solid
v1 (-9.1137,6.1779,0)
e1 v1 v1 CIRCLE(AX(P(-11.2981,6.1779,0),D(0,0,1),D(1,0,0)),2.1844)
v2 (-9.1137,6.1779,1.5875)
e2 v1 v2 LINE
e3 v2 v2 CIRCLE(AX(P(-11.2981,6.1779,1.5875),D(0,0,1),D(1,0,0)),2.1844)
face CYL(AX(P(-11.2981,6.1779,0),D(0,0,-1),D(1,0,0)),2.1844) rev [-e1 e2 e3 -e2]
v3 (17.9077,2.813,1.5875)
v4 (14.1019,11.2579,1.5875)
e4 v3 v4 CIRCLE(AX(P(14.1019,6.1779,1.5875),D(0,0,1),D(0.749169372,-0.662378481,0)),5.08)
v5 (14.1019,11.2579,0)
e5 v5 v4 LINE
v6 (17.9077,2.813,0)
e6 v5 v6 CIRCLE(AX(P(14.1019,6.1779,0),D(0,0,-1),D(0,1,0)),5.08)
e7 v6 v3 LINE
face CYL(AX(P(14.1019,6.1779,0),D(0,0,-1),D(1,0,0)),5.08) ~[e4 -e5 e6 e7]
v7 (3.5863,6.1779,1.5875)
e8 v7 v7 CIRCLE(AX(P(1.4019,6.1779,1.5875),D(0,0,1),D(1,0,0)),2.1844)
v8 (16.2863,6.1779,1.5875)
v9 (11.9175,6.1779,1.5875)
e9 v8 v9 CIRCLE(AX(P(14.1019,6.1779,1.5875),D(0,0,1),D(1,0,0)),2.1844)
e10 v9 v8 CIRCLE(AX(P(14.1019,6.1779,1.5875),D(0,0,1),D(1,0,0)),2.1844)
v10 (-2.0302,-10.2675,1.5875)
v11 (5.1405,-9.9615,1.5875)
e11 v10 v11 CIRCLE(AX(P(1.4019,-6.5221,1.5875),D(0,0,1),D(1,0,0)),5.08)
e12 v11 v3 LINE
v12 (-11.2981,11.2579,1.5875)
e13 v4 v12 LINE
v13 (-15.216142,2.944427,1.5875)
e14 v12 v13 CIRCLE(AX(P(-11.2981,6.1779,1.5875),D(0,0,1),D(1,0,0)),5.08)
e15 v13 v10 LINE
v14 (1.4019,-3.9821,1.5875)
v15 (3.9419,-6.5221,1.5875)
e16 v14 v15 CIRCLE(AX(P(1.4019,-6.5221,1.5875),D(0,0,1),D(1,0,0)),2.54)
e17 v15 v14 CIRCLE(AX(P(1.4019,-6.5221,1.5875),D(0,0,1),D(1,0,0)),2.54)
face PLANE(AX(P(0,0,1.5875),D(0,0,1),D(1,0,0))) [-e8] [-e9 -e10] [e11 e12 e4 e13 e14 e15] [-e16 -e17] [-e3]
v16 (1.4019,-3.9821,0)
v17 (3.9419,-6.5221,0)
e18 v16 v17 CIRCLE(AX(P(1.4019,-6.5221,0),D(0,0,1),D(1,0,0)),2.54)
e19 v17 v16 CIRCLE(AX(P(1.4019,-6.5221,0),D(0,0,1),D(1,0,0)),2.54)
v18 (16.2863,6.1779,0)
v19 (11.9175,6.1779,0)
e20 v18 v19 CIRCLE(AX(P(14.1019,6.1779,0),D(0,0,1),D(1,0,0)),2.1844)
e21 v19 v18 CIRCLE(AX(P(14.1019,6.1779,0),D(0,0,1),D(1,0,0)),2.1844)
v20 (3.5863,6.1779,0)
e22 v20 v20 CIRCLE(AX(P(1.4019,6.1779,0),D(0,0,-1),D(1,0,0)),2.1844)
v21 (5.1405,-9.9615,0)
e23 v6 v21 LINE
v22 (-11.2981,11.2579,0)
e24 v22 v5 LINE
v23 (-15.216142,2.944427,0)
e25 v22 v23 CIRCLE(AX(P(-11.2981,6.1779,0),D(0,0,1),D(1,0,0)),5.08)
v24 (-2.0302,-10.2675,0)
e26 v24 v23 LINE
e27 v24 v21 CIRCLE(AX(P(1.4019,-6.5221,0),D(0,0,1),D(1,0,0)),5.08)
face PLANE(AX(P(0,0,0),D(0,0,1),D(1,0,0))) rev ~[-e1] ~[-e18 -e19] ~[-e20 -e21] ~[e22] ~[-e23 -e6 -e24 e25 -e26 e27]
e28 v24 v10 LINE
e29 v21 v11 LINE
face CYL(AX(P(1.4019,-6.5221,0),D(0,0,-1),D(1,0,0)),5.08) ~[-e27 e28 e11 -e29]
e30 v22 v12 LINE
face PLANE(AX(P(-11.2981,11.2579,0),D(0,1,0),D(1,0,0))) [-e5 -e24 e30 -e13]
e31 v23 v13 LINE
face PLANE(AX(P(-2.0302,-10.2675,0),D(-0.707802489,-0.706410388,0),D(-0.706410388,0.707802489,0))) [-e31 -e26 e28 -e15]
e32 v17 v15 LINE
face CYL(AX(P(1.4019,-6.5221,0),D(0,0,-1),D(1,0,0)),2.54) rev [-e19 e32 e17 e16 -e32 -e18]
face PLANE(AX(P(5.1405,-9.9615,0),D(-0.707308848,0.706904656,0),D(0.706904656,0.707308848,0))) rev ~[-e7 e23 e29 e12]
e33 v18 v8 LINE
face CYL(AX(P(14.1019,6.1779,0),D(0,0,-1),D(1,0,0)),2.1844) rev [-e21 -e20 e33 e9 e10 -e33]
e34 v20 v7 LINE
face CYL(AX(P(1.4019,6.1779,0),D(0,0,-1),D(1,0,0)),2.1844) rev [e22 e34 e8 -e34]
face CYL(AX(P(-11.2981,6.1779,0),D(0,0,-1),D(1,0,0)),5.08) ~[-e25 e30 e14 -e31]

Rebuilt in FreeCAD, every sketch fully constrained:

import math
import FreeCAD as App
import Part
import Sketcher
Q = App.Units.Quantity

doc = App.newDocument("Part")
body = doc.addObject("PartDesign::Body", "Body")

sketch1 = body.newObject("Sketcher::SketchObject", "Sketch")
sketch1.AttachmentSupport = (doc.getObject("XY_Plane"), [""])
sketch1.MapMode = "FlatFace"
sketch1.addGeometry([
    Part.LineSegment(App.Vector(5.1, -10, 0), App.Vector(17.9, 2.8, 0)),
    Part.ArcOfCircle(Part.Circle(App.Vector(14.1, 6.2, 0), App.Vector(0, 0, 1), 5.1), math.radians(-41), math.radians(90)),
    Part.LineSegment(App.Vector(14.1, 11.3, 0), App.Vector(-11.3, 11.3, 0)),
    Part.ArcOfCircle(Part.Circle(App.Vector(-11.3, 6.2, 0), App.Vector(0, 0, 1), 5.1), math.radians(90), math.radians(220)),
    Part.LineSegment(App.Vector(-15.2, 2.9, 0), App.Vector(-2, -10.3, 0)),
    Part.ArcOfCircle(Part.Circle(App.Vector(1.4, -6.5, 0), App.Vector(0, 0, 1), 5.1), math.radians(-133), math.radians(-43)),
    Part.Circle(App.Vector(1.4, 6.2, 0), App.Vector(0, 0, 1), 2.2),
    Part.Circle(App.Vector(14.1, 6.2, 0), App.Vector(0, 0, 1), 2.2),
    Part.Circle(App.Vector(1.4, -6.5, 0), App.Vector(0, 0, 1), 2.5),
    Part.Circle(App.Vector(-11.3, 6.2, 0), App.Vector(0, 0, 1), 2.2),
], False)
sketch1.addConstraint([
    Sketcher.Constraint("Coincident", 0, 2, 1, 1),
    Sketcher.Constraint("Tangent", 1, 2, 2, 1),
    Sketcher.Constraint("Tangent", 2, 2, 3, 1),
    Sketcher.Constraint("Coincident", 3, 2, 4, 1),
    Sketcher.Constraint("Coincident", 4, 2, 5, 1),
    Sketcher.Constraint("Coincident", 5, 2, 0, 1),
    Sketcher.Constraint("Horizontal", 2),
    Sketcher.Constraint("Coincident", 7, 3, 1, 3),
    Sketcher.Constraint("Coincident", 8, 3, 5, 3),
    Sketcher.Constraint("Coincident", 9, 3, 3, 3),
    Sketcher.Constraint("Equal", 1, 3),
    Sketcher.Constraint("Equal", 3, 5),
    Sketcher.Constraint("Equal", 6, 7),
    Sketcher.Constraint("Equal", 7, 9),
    Sketcher.Constraint("Horizontal", 3, 3, 6, 3),
    Sketcher.Constraint("Vertical", 5, 3, 6, 3),
    Sketcher.Constraint("Diameter", 8, Q("0.2 in")),
    Sketcher.Constraint("Radius", 1, Q("0.2 in")),
    Sketcher.Constraint("Diameter", 6, Q("0.172 in")),
    Sketcher.Constraint("DistanceX", 5, 3, 1, 3, Q("0.5 in")),
    Sketcher.Constraint("DistanceY", 5, 3, 1, 3, Q("0.5 in")),
    Sketcher.Constraint("DistanceX", 3, 3, 5, 3, Q("0.5 in")),
    Sketcher.Constraint("DistanceX", -1, 1, 1, 3, Q("0.5552 in")),
    Sketcher.Constraint("DistanceY", 3, 2, 3, 3, Q("0.1273 in")),
    Sketcher.Constraint("DistanceX", 5, 3, 5, 2, Q("0.1472 in")),
    Sketcher.Constraint("DistanceX", 4, 2, 5, 2, Q("0.2823 in")),
    Sketcher.Constraint("Distance", 0, 18.0607),
    Sketcher.Constraint("DistanceY", -1, 1, 1, 3, 6.178),
])
pad1 = body.newObject("PartDesign::Pad", "Pad")
pad1.Profile = sketch1
pad1.Length = Q("0.0625 in")

doc.recompute()
